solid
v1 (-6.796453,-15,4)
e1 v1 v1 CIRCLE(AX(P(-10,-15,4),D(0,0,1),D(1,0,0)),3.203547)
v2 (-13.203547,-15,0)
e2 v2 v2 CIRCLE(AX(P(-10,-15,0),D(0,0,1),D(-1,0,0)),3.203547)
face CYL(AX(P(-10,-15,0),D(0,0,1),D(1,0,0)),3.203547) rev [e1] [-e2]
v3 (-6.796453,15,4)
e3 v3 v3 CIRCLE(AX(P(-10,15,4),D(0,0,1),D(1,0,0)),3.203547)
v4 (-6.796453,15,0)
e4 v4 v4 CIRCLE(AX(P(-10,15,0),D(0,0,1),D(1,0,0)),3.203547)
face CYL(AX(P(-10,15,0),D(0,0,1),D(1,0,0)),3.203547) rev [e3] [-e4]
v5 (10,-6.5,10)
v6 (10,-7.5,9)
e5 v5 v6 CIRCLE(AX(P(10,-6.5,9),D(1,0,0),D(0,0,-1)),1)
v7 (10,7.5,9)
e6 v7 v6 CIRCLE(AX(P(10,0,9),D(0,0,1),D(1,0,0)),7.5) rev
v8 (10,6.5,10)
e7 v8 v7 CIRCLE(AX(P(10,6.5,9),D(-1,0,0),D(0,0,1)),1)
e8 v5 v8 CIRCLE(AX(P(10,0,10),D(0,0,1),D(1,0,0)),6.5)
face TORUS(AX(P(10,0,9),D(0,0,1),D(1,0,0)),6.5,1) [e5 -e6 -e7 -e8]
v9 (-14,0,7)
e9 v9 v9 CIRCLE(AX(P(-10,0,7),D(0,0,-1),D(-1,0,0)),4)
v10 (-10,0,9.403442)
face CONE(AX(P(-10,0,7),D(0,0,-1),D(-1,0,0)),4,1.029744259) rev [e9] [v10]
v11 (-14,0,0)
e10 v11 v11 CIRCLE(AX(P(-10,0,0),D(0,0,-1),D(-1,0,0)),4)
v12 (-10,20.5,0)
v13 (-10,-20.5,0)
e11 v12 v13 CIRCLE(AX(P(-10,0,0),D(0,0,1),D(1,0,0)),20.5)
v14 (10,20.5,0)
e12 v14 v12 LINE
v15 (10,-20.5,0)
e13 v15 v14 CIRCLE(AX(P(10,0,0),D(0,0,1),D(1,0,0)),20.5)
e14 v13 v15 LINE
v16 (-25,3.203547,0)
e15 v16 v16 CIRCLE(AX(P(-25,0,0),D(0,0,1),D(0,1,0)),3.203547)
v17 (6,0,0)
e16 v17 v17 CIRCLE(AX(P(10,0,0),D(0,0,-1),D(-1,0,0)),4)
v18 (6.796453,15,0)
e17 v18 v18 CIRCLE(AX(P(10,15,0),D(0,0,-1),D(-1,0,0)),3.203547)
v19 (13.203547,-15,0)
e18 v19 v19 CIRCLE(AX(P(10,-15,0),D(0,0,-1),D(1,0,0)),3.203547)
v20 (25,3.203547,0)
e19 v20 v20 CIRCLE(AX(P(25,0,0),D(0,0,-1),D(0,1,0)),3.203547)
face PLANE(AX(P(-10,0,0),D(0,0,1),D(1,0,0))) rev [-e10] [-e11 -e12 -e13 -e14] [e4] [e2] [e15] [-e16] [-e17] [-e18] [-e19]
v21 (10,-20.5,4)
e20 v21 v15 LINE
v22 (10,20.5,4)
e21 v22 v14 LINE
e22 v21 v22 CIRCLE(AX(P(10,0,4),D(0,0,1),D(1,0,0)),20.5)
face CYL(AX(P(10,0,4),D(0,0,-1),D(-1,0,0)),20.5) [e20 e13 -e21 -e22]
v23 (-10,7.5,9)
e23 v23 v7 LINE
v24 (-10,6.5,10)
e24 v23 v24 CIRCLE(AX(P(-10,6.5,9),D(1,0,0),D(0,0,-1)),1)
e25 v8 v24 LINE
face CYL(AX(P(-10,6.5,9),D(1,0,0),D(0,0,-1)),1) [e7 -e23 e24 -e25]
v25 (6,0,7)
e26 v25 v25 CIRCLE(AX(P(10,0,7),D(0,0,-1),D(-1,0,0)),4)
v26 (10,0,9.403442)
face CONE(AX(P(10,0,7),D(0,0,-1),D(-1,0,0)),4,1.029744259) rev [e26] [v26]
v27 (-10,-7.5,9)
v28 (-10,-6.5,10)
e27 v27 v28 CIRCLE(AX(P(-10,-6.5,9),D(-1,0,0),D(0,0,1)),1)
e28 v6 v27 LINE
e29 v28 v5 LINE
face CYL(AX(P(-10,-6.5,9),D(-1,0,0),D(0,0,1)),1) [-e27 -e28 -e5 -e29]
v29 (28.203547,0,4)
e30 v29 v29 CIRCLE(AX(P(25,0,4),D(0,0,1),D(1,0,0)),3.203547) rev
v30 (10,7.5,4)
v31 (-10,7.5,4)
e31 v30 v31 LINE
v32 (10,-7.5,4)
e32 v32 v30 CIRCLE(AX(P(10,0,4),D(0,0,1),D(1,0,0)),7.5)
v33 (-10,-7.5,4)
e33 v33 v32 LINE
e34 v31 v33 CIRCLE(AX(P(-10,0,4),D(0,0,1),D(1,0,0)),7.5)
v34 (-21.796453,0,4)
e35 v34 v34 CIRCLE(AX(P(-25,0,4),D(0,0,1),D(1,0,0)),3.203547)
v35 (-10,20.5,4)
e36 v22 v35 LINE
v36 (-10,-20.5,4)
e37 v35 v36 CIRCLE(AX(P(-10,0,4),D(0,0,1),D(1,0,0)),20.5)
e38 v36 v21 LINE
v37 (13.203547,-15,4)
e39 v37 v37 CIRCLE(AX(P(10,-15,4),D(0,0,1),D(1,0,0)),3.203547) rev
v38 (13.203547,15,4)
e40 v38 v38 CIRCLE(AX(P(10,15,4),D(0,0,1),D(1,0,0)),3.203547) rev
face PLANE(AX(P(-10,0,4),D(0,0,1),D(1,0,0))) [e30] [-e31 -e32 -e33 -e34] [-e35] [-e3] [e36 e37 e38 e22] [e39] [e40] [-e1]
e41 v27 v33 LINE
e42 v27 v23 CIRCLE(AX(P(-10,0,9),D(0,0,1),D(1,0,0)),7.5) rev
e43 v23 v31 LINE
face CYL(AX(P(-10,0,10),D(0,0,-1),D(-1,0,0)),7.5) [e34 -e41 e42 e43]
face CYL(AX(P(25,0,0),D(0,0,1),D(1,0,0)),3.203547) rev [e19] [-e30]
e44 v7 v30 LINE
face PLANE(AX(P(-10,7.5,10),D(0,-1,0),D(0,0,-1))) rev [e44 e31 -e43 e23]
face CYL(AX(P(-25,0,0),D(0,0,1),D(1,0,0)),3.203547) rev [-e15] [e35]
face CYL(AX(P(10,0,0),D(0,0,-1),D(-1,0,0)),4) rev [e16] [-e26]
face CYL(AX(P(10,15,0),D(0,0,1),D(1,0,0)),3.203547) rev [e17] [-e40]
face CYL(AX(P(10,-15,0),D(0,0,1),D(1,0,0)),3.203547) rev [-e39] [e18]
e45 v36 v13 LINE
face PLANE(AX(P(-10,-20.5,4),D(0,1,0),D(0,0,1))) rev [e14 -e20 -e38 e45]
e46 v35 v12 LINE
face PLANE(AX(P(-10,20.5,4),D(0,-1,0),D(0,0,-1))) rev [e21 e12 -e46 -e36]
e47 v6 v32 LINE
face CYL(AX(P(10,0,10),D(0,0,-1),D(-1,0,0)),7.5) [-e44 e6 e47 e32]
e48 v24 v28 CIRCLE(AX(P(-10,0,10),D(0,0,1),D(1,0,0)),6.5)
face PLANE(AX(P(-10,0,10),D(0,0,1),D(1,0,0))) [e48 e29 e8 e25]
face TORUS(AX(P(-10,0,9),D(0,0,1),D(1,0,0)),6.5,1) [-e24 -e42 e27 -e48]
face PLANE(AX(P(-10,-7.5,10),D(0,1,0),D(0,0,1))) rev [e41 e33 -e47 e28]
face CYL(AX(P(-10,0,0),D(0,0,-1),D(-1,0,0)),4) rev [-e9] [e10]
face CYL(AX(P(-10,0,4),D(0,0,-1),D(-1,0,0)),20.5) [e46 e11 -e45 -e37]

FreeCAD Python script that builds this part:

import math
import FreeCAD as App
import Part
import Sketcher
from FreeCAD import Vector


def edges_at(feature, points):
    """Names of the edges that pass closest to the given points."""
    edges = feature.Shape.Edges
    near = lambda p: min(range(len(edges)), key=lambda i: edges[i].distToShape(Part.Vertex(*p))[0])
    return sorted({f"Edge{near(p) + 1}" for p in points})

doc = App.newDocument("Part")
body = doc.addObject("PartDesign::Body", "Body")

sketch1 = body.newObject("Sketcher::SketchObject", "Sketch")
sketch1.AttachmentSupport = (doc.getObject("XY_Plane"), [""])
sketch1.MapMode = "FlatFace"
sketch1.addGeometry(Part.LineSegment(Vector(10, 20, 0), Vector(-10, 20, 0)), False)
sketch1.addGeometry(Part.ArcOfCircle(Part.Circle(Vector(-10, 0, 0), Vector(0, 0, 1), 20), math.radians(90), math.radians(270)), False)
sketch1.addGeometry(Part.LineSegment(Vector(-10, -20, 0), Vector(10, -20, 0)), False)
sketch1.addGeometry(Part.ArcOfCircle(Part.Circle(Vector(10, 0, 0), Vector(0, 0, 1), 20), math.radians(-90), math.radians(90)), False)
sketch1.addConstraint(Sketcher.Constraint("Tangent", 0, 2, 1, 1))
sketch1.addConstraint(Sketcher.Constraint("Tangent", 1, 2, 2, 1))
sketch1.addConstraint(Sketcher.Constraint("Tangent", 2, 2, 3, 1))
sketch1.addConstraint(Sketcher.Constraint("Tangent", 3, 2, 0, 1))
sketch1.addConstraint(Sketcher.Constraint("Horizontal", 0))
sketch1.addConstraint(Sketcher.Constraint("Horizontal", 2))
sketch1.addConstraint(Sketcher.Constraint("Symmetric", 1, 3, 3, 3, -1, 1))
sketch1.addConstraint(Sketcher.Constraint("Radius", 1, 20.5))
sketch1.addConstraint(Sketcher.Constraint("DistanceX", 0, 2, 0, 1, 20.0))
pad1 = body.newObject("PartDesign::Pad", "Pad")
pad1.Profile = sketch1
pad1.Length = 4

sketch2 = body.newObject("Sketcher::SketchObject", "Sketch001")
sketch2.AttachmentSupport = (doc.getObject("XY_Plane"), [""])
sketch2.MapMode = "FlatFace"
sketch2.AttachmentOffset = App.Placement(Vector(0, 0, 4), App.Rotation())
sketch2.addGeometry(Part.LineSegment(Vector(10, 8, 0), Vector(-10, 8, 0)), False)
sketch2.addGeometry(Part.ArcOfCircle(Part.Circle(Vector(-10, 0, 0), Vector(0, 0, 1), 8), math.radians(90), math.radians(270)), False)
sketch2.addGeometry(Part.LineSegment(Vector(-10, -8, 0), Vector(10, -8, 0)), False)
sketch2.addGeometry(Part.ArcOfCircle(Part.Circle(Vector(10, 0, 0), Vector(0, 0, 1), 8), math.radians(-90), math.radians(90)), False)
sketch2.addConstraint(Sketcher.Constraint("Tangent", 0, 2, 1, 1))
sketch2.addConstraint(Sketcher.Constraint("Tangent", 1, 2, 2, 1))
sketch2.addConstraint(Sketcher.Constraint("Tangent", 2, 2, 3, 1))
sketch2.addConstraint(Sketcher.Constraint("Tangent", 3, 2, 0, 1))
sketch2.addConstraint(Sketcher.Constraint("Horizontal", 0))
sketch2.addConstraint(Sketcher.Constraint("Horizontal", 2))
sketch2.addConstraint(Sketcher.Constraint("Symmetric", 1, 3, 3, 3, -1, 1))
sketch2.addConstraint(Sketcher.Constraint("Radius", 1, 7.5))
sketch2.addConstraint(Sketcher.Constraint("DistanceX", 0, 2, 0, 1, 20.0))
pad2 = body.newObject("PartDesign::Pad", "Pad001")
pad2.Profile = sketch2
pad2.Length = 6

sketch3 = body.newObject("Sketcher::SketchObject", "Sketch002")
sketch3.AttachmentSupport = (doc.getObject("XY_Plane"), [""])
sketch3.MapMode = "FlatFace"
sketch3.addGeometry(Part.Circle(Vector(10, 0, 0), Vector(0, 0, 1), 4), False)
sketch3.addGeometry(Part.Circle(Vector(-10, 0, 0), Vector(0, 0, 1), 4), False)
sketch3.addConstraint(Sketcher.Constraint("Equal", 0, 1))
sketch3.addConstraint(Sketcher.Constraint("Symmetric", 0, 3, 1, 3, -1, 1))
sketch3.addConstraint(Sketcher.Constraint("PointOnObject", 0, 3, -1))
sketch3.addConstraint(Sketcher.Constraint("Diameter", 0, 8.0))
sketch3.addConstraint(Sketcher.Constraint("DistanceX", -1, 1, 0, 3, 10.0))
doc.recompute()
hole = body.newObject("PartDesign::Hole", "Hole")
hole.Profile = sketch3
hole.ThreadType = "None"
hole.Diameter = 8
hole.DepthType = "Dimension"
hole.Depth = 7
hole.DrillPoint = "Angled"
hole.DrillPointAngle = 118
hole.Reversed = True
doc.recompute()

fillet = body.newObject("PartDesign::Fillet", "Fillet")
fillet.Base = (hole, edges_at(hole, [
    (-17.5, 0, 10),
    (0, -7.5, 10),
    (17.5, 0, 10),
    (0, 7.5, 10),
]))
fillet.Radius = 1

sketch4 = body.newObject("Sketcher::SketchObject", "Sketch003")
sketch4.AttachmentSupport = (doc.getObject("XY_Plane"), [""])
sketch4.MapMode = "FlatFace"
sketch4.AttachmentOffset = App.Placement(Vector(0, 0, 4), App.Rotation())
sketch4.addGeometry(Part.Circle(Vector(-10, 15, 0), Vector(0, 0, 1), 3.2), False)
sketch4.addConstraint(Sketcher.Constraint("DistanceX", 0, 3, -1, 1, 10.0))
sketch4.addConstraint(Sketcher.Constraint("DistanceY", -1, 1, 0, 3, 15.0))
sketch4.addConstraint(Sketcher.Constraint("Diameter", 0, 6.407095))
pocket1 = body.newObject("PartDesign::Pocket", "Pocket")
pocket1.Profile = sketch4
pocket1.Length = 76.471471
pocket1.Midplane = True
doc.recompute()

datumline = body.newObject("PartDesign::Line", "DatumLine")
datumline.Placement = App.Placement(Vector(-10, 0, 0), App.Rotation(Vector(0, 0, 1), Vector(0, 0, 1)))
polarpattern = body.newObject("PartDesign::PolarPattern", "PolarPattern")
polarpattern.Originals = [pocket1]
polarpattern.Axis = (datumline, [""])
polarpattern.Angle = 180
polarpattern.Occurrences = 3
body.Tip = polarpattern
doc.recompute()

mirrored = body.newObject("PartDesign::Mirrored", "Mirrored")
mirrored.Originals = [pocket1]
mirrored.MirrorPlane = (doc.getObject("YZ_Plane"), [""])
body.Tip = mirrored

sketch5 = body.newObject("Sketcher::SketchObject", "Sketch004")
sketch5.AttachmentSupport = (doc.getObject("XY_Plane"), [""])
sketch5.MapMode = "FlatFace"
sketch5.AttachmentOffset = App.Placement(Vector(0, 0, 4), App.Rotation())
sketch5.addGeometry(Part.Circle(Vector(25, 0, 0), Vector(0, 0, 1), 3.2), False)
sketch5.addConstraint(Sketcher.Constraint("PointOnObject", 0, 3, -1))
sketch5.addConstraint(Sketcher.Constraint("DistanceX", -1, 1, 0, 3, 25.0))
sketch5.addConstraint(Sketcher.Constraint("Diameter", 0, 6.407095))
pocket2 = body.newObject("PartDesign::Pocket", "Pocket001")
pocket2.Profile = sketch5
pocket2.Length = 76.471471
pocket2.Midplane = True

sketch6 = body.newObject("Sketcher::SketchObject", "Sketch005")
sketch6.AttachmentSupport = (doc.getObject("XY_Plane"), [""])
sketch6.MapMode = "FlatFace"
sketch6.AttachmentOffset = App.Placement(Vector(0, 0, 4), App.Rotation())
sketch6.addGeometry(Part.Circle(Vector(10, -15, 0), Vector(0, 0, 1), 3.2), False)
sketch6.addConstraint(Sketcher.Constraint("DistanceX", -1, 1, 0, 3, 10.0))
sketch6.addConstraint(Sketcher.Constraint("DistanceY", 0, 3, -1, 1, 15.0))
sketch6.addConstraint(Sketcher.Constraint("Diameter", 0, 6.407095))
pocket3 = body.newObject("PartDesign::Pocket", "Pocket002")
pocket3.Profile = sketch6
pocket3.Length = 76.471471
pocket3.Midplane = True

doc.recompute()
